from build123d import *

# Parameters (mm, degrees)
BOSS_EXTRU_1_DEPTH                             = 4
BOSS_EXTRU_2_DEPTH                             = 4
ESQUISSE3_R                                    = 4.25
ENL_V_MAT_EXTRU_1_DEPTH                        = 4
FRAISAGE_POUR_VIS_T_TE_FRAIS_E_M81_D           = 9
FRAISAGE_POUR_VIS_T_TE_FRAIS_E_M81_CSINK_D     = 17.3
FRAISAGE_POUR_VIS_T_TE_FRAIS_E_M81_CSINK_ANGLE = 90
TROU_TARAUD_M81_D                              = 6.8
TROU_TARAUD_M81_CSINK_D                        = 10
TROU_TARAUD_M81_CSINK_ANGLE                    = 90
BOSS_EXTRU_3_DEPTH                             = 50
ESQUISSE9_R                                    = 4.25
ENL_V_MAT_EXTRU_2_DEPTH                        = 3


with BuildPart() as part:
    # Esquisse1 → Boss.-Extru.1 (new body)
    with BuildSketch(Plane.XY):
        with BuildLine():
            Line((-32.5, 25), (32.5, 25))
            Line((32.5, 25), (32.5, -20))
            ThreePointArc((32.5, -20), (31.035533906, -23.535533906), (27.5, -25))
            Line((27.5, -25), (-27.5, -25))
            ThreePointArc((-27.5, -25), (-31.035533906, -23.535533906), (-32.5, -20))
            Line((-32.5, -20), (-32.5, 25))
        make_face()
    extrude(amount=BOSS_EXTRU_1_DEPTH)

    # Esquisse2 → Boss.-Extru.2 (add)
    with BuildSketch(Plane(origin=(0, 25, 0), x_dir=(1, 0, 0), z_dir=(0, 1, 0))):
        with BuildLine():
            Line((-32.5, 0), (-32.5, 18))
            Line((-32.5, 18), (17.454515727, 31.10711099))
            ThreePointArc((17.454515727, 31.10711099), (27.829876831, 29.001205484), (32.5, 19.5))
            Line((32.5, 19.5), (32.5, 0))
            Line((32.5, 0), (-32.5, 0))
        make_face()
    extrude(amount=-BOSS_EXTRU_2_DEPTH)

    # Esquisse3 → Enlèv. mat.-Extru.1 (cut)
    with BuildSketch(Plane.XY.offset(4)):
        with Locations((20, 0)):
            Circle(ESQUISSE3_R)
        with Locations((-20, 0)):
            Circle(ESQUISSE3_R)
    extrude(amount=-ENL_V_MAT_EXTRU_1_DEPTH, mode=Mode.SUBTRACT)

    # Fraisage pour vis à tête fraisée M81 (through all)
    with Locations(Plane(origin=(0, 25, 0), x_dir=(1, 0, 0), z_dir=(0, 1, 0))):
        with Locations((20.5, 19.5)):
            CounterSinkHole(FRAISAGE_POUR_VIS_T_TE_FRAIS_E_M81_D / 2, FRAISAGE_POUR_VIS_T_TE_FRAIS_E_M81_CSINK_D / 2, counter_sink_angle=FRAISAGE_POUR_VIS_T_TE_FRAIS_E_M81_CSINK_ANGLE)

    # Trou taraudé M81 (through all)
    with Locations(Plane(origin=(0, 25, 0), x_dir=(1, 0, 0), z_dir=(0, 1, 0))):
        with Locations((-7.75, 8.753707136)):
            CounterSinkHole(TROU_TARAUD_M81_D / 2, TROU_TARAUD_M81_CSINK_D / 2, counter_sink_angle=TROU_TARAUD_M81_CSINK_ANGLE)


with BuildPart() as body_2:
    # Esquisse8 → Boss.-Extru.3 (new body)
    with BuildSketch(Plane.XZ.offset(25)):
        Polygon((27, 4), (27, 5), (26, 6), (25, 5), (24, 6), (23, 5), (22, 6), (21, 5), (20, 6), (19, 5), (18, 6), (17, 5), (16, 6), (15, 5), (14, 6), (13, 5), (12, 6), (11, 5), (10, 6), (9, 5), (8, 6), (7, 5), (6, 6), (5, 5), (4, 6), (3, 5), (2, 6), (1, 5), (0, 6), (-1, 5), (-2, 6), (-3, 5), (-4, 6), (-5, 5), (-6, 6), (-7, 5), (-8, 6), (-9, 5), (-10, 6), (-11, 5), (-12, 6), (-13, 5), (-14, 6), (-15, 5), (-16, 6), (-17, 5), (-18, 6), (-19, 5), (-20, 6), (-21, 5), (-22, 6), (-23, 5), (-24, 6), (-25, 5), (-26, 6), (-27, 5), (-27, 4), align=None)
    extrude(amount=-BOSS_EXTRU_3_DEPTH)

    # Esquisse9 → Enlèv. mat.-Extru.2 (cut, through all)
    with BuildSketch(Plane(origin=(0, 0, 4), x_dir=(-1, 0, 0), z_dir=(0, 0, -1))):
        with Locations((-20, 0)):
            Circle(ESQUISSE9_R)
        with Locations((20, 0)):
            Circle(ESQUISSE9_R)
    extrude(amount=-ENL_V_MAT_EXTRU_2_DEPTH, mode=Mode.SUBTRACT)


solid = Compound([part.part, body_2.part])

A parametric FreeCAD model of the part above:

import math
import FreeCAD as App
import Part
import Sketcher
from FreeCAD import Vector
Q = App.Units.Quantity

doc = App.newDocument("Part")
body = doc.addObject("PartDesign::Body", "Body")

sketch1 = body.newObject("Sketcher::SketchObject", "Sketch")
sketch1.AttachmentSupport = (doc.getObject("XY_Plane"), [""])
sketch1.MapMode = "FlatFace"
sketch1.addGeometry(Part.LineSegment(Vector(32, 25, 0), Vector(-32, 25, 0)), False)
sketch1.addGeometry(Part.LineSegment(Vector(-32, 25, 0), Vector(-32, -20, 0)), False)
sketch1.addGeometry(Part.ArcOfCircle(Part.Circle(Vector(-28, -20, 0), Vector(0, 0, 1), 5), math.radians(180), math.radians(270)), False)
sketch1.addGeometry(Part.LineSegment(Vector(-28, -25, 0), Vector(28, -25, 0)), False)
sketch1.addGeometry(Part.ArcOfCircle(Part.Circle(Vector(28, -20, 0), Vector(0, 0, 1), 5), math.radians(-90), math.radians(0)), False)
sketch1.addGeometry(Part.LineSegment(Vector(32, -20, 0), Vector(32, 25, 0)), False)
sketch1.addConstraint(Sketcher.Constraint("Coincident", 0, 2, 1, 1))
sketch1.addConstraint(Sketcher.Constraint("Tangent", 1, 2, 2, 1))
sketch1.addConstraint(Sketcher.Constraint("Tangent", 2, 2, 3, 1))
sketch1.addConstraint(Sketcher.Constraint("Tangent", 3, 2, 4, 1))
sketch1.addConstraint(Sketcher.Constraint("Tangent", 4, 2, 5, 1))
sketch1.addConstraint(Sketcher.Constraint("Coincident", 5, 2, 0, 1))
sketch1.addConstraint(Sketcher.Constraint("Horizontal", 0))
sketch1.addConstraint(Sketcher.Constraint("Vertical", 1))
sketch1.addConstraint(Sketcher.Constraint("Horizontal", 3))
sketch1.addConstraint(Sketcher.Constraint("Vertical", 5))
sketch1.addConstraint(Sketcher.Constraint("Equal", 2, 4))
sketch1.addConstraint(Sketcher.Constraint("Radius", 2, Q("5 mm")))
sketch1.addConstraint(Sketcher.Constraint("DistanceX", 0, 2, 0, 1, Q("65 mm")))
sketch1.addConstraint(Sketcher.Constraint("DistanceY", 1, 2, 1, 1, Q("45 mm")))
sketch1.addConstraint(Sketcher.Constraint("DistanceY", 2, 3, -1, 1, Q("20 mm")))
sketch1.addConstraint(Sketcher.Constraint("DistanceX", 2, 3, -1, 1, Q("27.5 mm")))
pad1 = body.newObject("PartDesign::Pad", "Pad")
pad1.Profile = sketch1
pad1.Length = 4

sketch2 = body.newObject("Sketcher::SketchObject", "Sketch001")
sketch2.AttachmentSupport = (doc.getObject("XZ_Plane"), [""])
sketch2.MapMode = "FlatFace"
sketch2.AttachmentOffset = App.Placement(Vector(0, 0, -25), App.Rotation())
sketch2.addGeometry(Part.LineSegment(Vector(-32, -18, 0), Vector(-32, 0, 0)), False)
sketch2.addGeometry(Part.LineSegment(Vector(-32, 0, 0), Vector(32, 0, 0)), False)
sketch2.addGeometry(Part.LineSegment(Vector(32, 0, 0), Vector(32, -20, 0)), False)
sketch2.addGeometry(Part.ArcOfCircle(Part.Circle(Vector(21, -20, 0), Vector(0, 0, 1), 12), math.radians(-105), math.radians(0)), False)
sketch2.addGeometry(Part.LineSegment(Vector(17, -31, 0), Vector(-32, -18, 0)), False)
sketch2.addConstraint(Sketcher.Constraint("Coincident", 0, 2, 1, 1))
sketch2.addConstraint(Sketcher.Constraint("Coincident", 1, 2, 2, 1))
sketch2.addConstraint(Sketcher.Constraint("Tangent", 2, 2, 3, 2))
sketch2.addConstraint(Sketcher.Constraint("Tangent", 3, 1, 4, 1))
sketch2.addConstraint(Sketcher.Constraint("Coincident", 4, 2, 0, 1))
sketch2.addConstraint(Sketcher.Constraint("Vertical", 0))
sketch2.addConstraint(Sketcher.Constraint("Horizontal", 1))
sketch2.addConstraint(Sketcher.Constraint("Vertical", 2))
sketch2.addConstraint(Sketcher.Constraint("Symmetric", 0, 2, 1, 2, -1, 1))
sketch2.addConstraint(Sketcher.Constraint("Radius", 3, Q("12 mm")))
sketch2.addConstraint(Sketcher.Constraint("DistanceX", 1, 1, 1, 2, Q("65 mm")))
sketch2.addConstraint(Sketcher.Constraint("DistanceY", 0, 1, 0, 2, Q("18 mm")))
sketch2.addConstraint(Sketcher.Constraint("DistanceY", 2, 2, 2, 1, Q("19.5 mm")))
pad2 = body.newObject("PartDesign::Pad", "Pad001")
pad2.Profile = sketch2
pad2.Length = 4

sketch3 = body.newObject("Sketcher::SketchObject", "Sketch002")
sketch3.AttachmentSupport = (doc.getObject("XY_Plane"), [""])
sketch3.MapMode = "FlatFace"
sketch3.AttachmentOffset = App.Placement(Vector(0, 0, 4), App.Rotation())
sketch3.addGeometry(Part.Circle(Vector(20, 0, 0), Vector(0, 0, 1), 4.2), False)
sketch3.addGeometry(Part.Circle(Vector(-20, 0, 0), Vector(0, 0, 1), 4.2), False)
sketch3.addConstraint(Sketcher.Constraint("Equal", 0, 1))
sketch3.addConstraint(Sketcher.Constraint("Symmetric", 0, 3, 1, 3, -1, 1))
sketch3.addConstraint(Sketcher.Constraint("PointOnObject", 0, 3, -1))
sketch3.addConstraint(Sketcher.Constraint("Diameter", 0, Q("8.5 mm")))
sketch3.addConstraint(Sketcher.Constraint("DistanceX", -1, 1, 0, 3, Q("20 mm")))
pocket1 = body.newObject("PartDesign::Pocket", "Pocket")
pocket1.Profile = sketch3
pocket1.Length = 4

sketch4 = body.newObject("Sketcher::SketchObject", "Sketch003")
sketch4.AttachmentSupport = (doc.getObject("XZ_Plane"), [""])
sketch4.MapMode = "FlatFace"
sketch4.AttachmentOffset = App.Placement(Vector(0, 0, -25), App.Rotation())
sketch4.addGeometry(Part.Circle(Vector(20.5, -19.5, 0), Vector(0, 0, 1), 4.5), False)
sketch4.addConstraint(Sketcher.Constraint("Diameter", 0, Q("9 mm")))
sketch4.addConstraint(Sketcher.Constraint("DistanceX", -1, 1, 0, 3, Q("20.5 mm")))
sketch4.addConstraint(Sketcher.Constraint("DistanceY", 0, 3, -1, 1, Q("19.5 mm")))
doc.recompute()
hole = body.newObject("PartDesign::Hole", "Hole")
hole.Profile = sketch4
hole.ThreadType = "None"
hole.Diameter = 9
hole.DepthType = "ThroughAll"
hole.HoleCutType = "Countersink"
hole.HoleCutDiameter = 17.3
hole.HoleCutCountersinkAngle = 90
hole.Reversed = True

sketch5 = body.newObject("Sketcher::SketchObject", "Sketch004")
sketch5.AttachmentSupport = (doc.getObject("XZ_Plane"), [""])
sketch5.MapMode = "FlatFace"
sketch5.AttachmentOffset = App.Placement(Vector(0, 0, -25), App.Rotation())
sketch5.addGeometry(Part.Circle(Vector(-7.8, -8.8, 0), Vector(0, 0, 1), 3.4), False)
sketch5.addConstraint(Sketcher.Constraint("Diameter", 0, Q("6.8 mm")))
sketch5.addConstraint(Sketcher.Constraint("DistanceX", 0, 3, -1, 1, Q("7.75 mm")))
sketch5.addConstraint(Sketcher.Constraint("DistanceY", 0, 3, -1, 1, Q("8.753707 mm")))
doc.recompute()
hole2 = body.newObject("PartDesign::Hole", "Hole001")
hole2.Profile = sketch5
hole2.ThreadType = "None"
hole2.Diameter = 6.8
hole2.DepthType = "ThroughAll"
hole2.HoleCutType = "Countersink"
hole2.HoleCutDiameter = 10
hole2.HoleCutCountersinkAngle = 90
hole2.Reversed = True
body2 = doc.addObject("PartDesign::Body", "Body001")

sketch6 = body2.newObject("Sketcher::SketchObject", "Sketch005")
sketch6.AttachmentSupport = (doc.getObject("XZ_Plane001"), [""])
sketch6.MapMode = "FlatFace"
sketch6.AttachmentOffset = App.Placement(Vector(0, 0, 25), App.Rotation())
sketch6.addGeometry(Part.LineSegment(Vector(27, 4, 0), Vector(27, 5, 0)), False)
sketch6.addGeometry(Part.LineSegment(Vector(27, 5, 0), Vector(26, 6, 0)), False)
sketch6.addGeometry(Part.LineSegment(Vector(26, 6, 0), Vector(25, 5, 0)), False)
sketch6.addGeometry(Part.LineSegment(Vector(25, 5, 0), Vector(24, 6, 0)), False)
sketch6.addGeometry(Part.LineSegment(Vector(24, 6, 0), Vector(23, 5, 0)), False)
sketch6.addGeometry(Part.LineSegment(Vector(23, 5, 0), Vector(22, 6, 0)), False)
sketch6.addGeometry(Part.LineSegment(Vector(22, 6, 0), Vector(21, 5, 0)), False)
sketch6.addGeometry(Part.LineSegment(Vector(21, 5, 0), Vector(20, 6, 0)), False)
sketch6.addGeometry(Part.LineSegment(Vector(20, 6, 0), Vector(19, 5, 0)), False)
sketch6.addGeometry(Part.LineSegment(Vector(19, 5, 0), Vector(18, 6, 0)), False)
sketch6.addGeometry(Part.LineSegment(Vector(18, 6, 0), Vector(17, 5, 0)), False)
sketch6.addGeometry(Part.LineSegment(Vector(17, 5, 0), Vector(16, 6, 0)), False)
sketch6.addGeometry(Part.LineSegment(Vector(16, 6, 0), Vector(15, 5, 0)), False)
sketch6.addGeometry(Part.LineSegment(Vector(15, 5, 0), Vector(14, 6, 0)), False)
sketch6.addGeometry(Part.LineSegment(Vector(14, 6, 0), Vector(13, 5, 0)), False)
sketch6.addGeometry(Part.LineSegment(Vector(13, 5, 0), Vector(12, 6, 0)), False)
sketch6.addGeometry(Part.LineSegment(Vector(12, 6, 0), Vector(11, 5, 0)), False)
sketch6.addGeometry(Part.LineSegment(Vector(11, 5, 0), Vector(10, 6, 0)), False)
sketch6.addGeometry(Part.LineSegment(Vector(10, 6, 0), Vector(9, 5, 0)), False)
sketch6.addGeometry(Part.LineSegment(Vector(9, 5, 0), Vector(8, 6, 0)), False)
sketch6.addGeometry(Part.LineSegment(Vector(8, 6, 0), Vector(7, 5, 0)), False)
sketch6.addGeometry(Part.LineSegment(Vector(7, 5, 0), Vector(6, 6, 0)), False)
sketch6.addGeometry(Part.LineSegment(Vector(6, 6, 0), Vector(5, 5, 0)), False)
sketch6.addGeometry(Part.LineSegment(Vector(5, 5, 0), Vector(4, 6, 0)), False)
sketch6.addGeometry(Part.LineSegment(Vector(4, 6, 0), Vector(3, 5, 0)), False)
sketch6.addGeometry(Part.LineSegment(Vector(3, 5, 0), Vector(2, 6, 0)), False)
sketch6.addGeometry(Part.LineSegment(Vector(2, 6, 0), Vector(1, 5, 0)), False)
sketch6.addGeometry(Part.LineSegment(Vector(1, 5, 0), Vector(0, 6, 0)), False)
sketch6.addGeometry(Part.LineSegment(Vector(0, 6, 0), Vector(-1, 5, 0)), False)
sketch6.addGeometry(Part.LineSegment(Vector(-1, 5, 0), Vector(-2, 6, 0)), False)
sketch6.addGeometry(Part.LineSegment(Vector(-2, 6, 0), Vector(-3, 5, 0)), False)
sketch6.addGeometry(Part.LineSegment(Vector(-3, 5, 0), Vector(-4, 6, 0)), False)
sketch6.addGeometry(Part.LineSegment(Vector(-4, 6, 0), Vector(-5, 5, 0)), False)
sketch6.addGeometry(Part.LineSegment(Vector(-5, 5, 0), Vector(-6, 6, 0)), False)
sketch6.addGeometry(Part.LineSegment(Vector(-6, 6, 0), Vector(-7, 5, 0)), False)
sketch6.addGeometry(Part.LineSegment(Vector(-7, 5, 0), Vector(-8, 6, 0)), False)
sketch6.addGeometry(Part.LineSegment(Vector(-8, 6, 0), Vector(-9, 5, 0)), False)
sketch6.addGeometry(Part.LineSegment(Vector(-9, 5, 0), Vector(-10, 6, 0)), False)
sketch6.addGeometry(Part.LineSegment(Vector(-10, 6, 0), Vector(-11, 5, 0)), False)
sketch6.addGeometry(Part.LineSegment(Vector(-11, 5, 0), Vector(-12, 6, 0)), False)
sketch6.addGeometry(Part.LineSegment(Vector(-12, 6, 0), Vector(-13, 5, 0)), False)
sketch6.addGeometry(Part.LineSegment(Vector(-13, 5, 0), Vector(-14, 6, 0)), False)
sketch6.addGeometry(Part.LineSegment(Vector(-14, 6, 0), Vector(-15, 5, 0)), False)
sketch6.addGeometry(Part.LineSegment(Vector(-15, 5, 0), Vector(-16, 6, 0)), False)
sketch6.addGeometry(Part.LineSegment(Vector(-16, 6, 0), Vector(-17, 5, 0)), False)
sketch6.addGeometry(Part.LineSegment(Vector(-17, 5, 0), Vector(-18, 6, 0)), False)
sketch6.addGeometry(Part.LineSegment(Vector(-18, 6, 0), Vector(-19, 5, 0)), False)
sketch6.addGeometry(Part.LineSegment(Vector(-19, 5, 0), Vector(-20, 6, 0)), False)
sketch6.addGeometry(Part.LineSegment(Vector(-20, 6, 0), Vector(-21, 5, 0)), False)
sketch6.addGeometry(Part.LineSegment(Vector(-21, 5, 0), Vector(-22, 6, 0)), False)
sketch6.addGeometry(Part.LineSegment(Vector(-22, 6, 0), Vector(-23, 5, 0)), False)
sketch6.addGeometry(Part.LineSegment(Vector(-23, 5, 0), Vector(-24, 6, 0)), False)
sketch6.addGeometry(Part.LineSegment(Vector(-24, 6, 0), Vector(-25, 5, 0)), False)
sketch6.addGeometry(Part.LineSegment(Vector(-25, 5, 0), Vector(-26, 6, 0)), False)
sketch6.addGeometry(Part.LineSegment(Vector(-26, 6, 0), Vector(-27, 5, 0)), False)
sketch6.addGeometry(Part.LineSegment(Vector(-27, 5, 0), Vector(-27, 4, 0)), False)
sketch6.addGeometry(Part.LineSegment(Vector(-27, 4, 0), Vector(27, 4, 0)), False)
sketch6.addConstraint(Sketcher.Constraint("Coincident", 0, 2, 1, 1))
sketch6.addConstraint(Sketcher.Constraint("Coincident", 1, 2, 2, 1))
sketch6.addConstraint(Sketcher.Constraint("Coincident", 2, 2, 3, 1))
sketch6.addConstraint(Sketcher.Constraint("Coincident", 3, 2, 4, 1))
sketch6.addConstraint(Sketcher.Constraint("Coincident", 4, 2, 5, 1))
sketch6.addConstraint(Sketcher.Constraint("Coincident", 5, 2, 6, 1))
sketch6.addConstraint(Sketcher.Constraint("Coincident", 6, 2, 7, 1))
sketch6.addConstraint(Sketcher.Constraint("Coincident", 7, 2, 8, 1))
sketch6.addConstraint(Sketcher.Constraint("Coincident", 8, 2, 9, 1))
sketch6.addConstraint(Sketcher.Constraint("Coincident", 9, 2, 10, 1))
sketch6.addConstraint(Sketcher.Constraint("Coincident", 10, 2, 11, 1))
sketch6.addConstraint(Sketcher.Constraint("Coincident", 11, 2, 12, 1))
sketch6.addConstraint(Sketcher.Constraint("Coincident", 12, 2, 13, 1))
sketch6.addConstraint(Sketcher.Constraint("Coincident", 13, 2, 14, 1))
sketch6.addConstraint(Sketcher.Constraint("Coincident", 14, 2, 15, 1))
sketch6.addConstraint(Sketcher.Constraint("Coincident", 15, 2, 16, 1))
sketch6.addConstraint(Sketcher.Constraint("Coincident", 16, 2, 17, 1))
sketch6.addConstraint(Sketcher.Constraint("Coincident", 17, 2, 18, 1))
sketch6.addConstraint(Sketcher.Constraint("Coincident", 18, 2, 19, 1))
sketch6.addConstraint(Sketcher.Constraint("Coincident", 19, 2, 20, 1))
sketch6.addConstraint(Sketcher.Constraint("Coincident", 20, 2, 21, 1))
sketch6.addConstraint(Sketcher.Constraint("Coincident", 21, 2, 22, 1))
sketch6.addConstraint(Sketcher.Constraint("Coincident", 22, 2, 23, 1))
sketch6.addConstraint(Sketcher.Constraint("Coincident", 23, 2, 24, 1))
sketch6.addConstraint(Sketcher.Constraint("Coincident", 24, 2, 25, 1))
sketch6.addConstraint(Sketcher.Constraint("Coincident", 25, 2, 26, 1))
sketch6.addConstraint(Sketcher.Constraint("Coincident", 26, 2, 27, 1))
sketch6.addConstraint(Sketcher.Constraint("Coincident", 27, 2, 28, 1))
sketch6.addConstraint(Sketcher.Constraint("Coincident", 28, 2, 29, 1))
sketch6.addConstraint(Sketcher.Constraint("Coincident", 29, 2, 30, 1))
sketch6.addConstraint(Sketcher.Constraint("Coincident", 30, 2, 31, 1))
sketch6.addConstraint(Sketcher.Constraint("Coincident", 31, 2, 32, 1))
sketch6.addConstraint(Sketcher.Constraint("Coincident", 32, 2, 33, 1))
sketch6.addConstraint(Sketcher.Constraint("Coincident", 33, 2, 34, 1))
sketch6.addConstraint(Sketcher.Constraint("Coincident", 34, 2, 35, 1))
sketch6.addConstraint(Sketcher.Constraint("Coincident", 35, 2, 36, 1))
sketch6.addConstraint(Sketcher.Constraint("Coincident", 36, 2, 37, 1))
sketch6.addConstraint(Sketcher.Constraint("Coincident", 37, 2, 38, 1))
sketch6.addConstraint(Sketcher.Constraint("Coincident", 38, 2, 39, 1))
sketch6.addConstraint(Sketcher.Constraint("Coincident", 39, 2, 40, 1))
sketch6.addConstraint(Sketcher.Constraint("Coincident", 40, 2, 41, 1))
sketch6.addConstraint(Sketcher.Constraint("Coincident", 41, 2, 42, 1))
sketch6.addConstraint(Sketcher.Constraint("Coincident", 42, 2, 43, 1))
sketch6.addConstraint(Sketcher.Constraint("Coincident", 43, 2, 44, 1))
sketch6.addConstraint(Sketcher.Constraint("Coincident", 44, 2, 45, 1))
sketch6.addConstraint(Sketcher.Constraint("Coincident", 45, 2, 46, 1))
sketch6.addConstraint(Sketcher.Constraint("Coincident", 46, 2, 47, 1))
sketch6.addConstraint(Sketcher.Constraint("Coincident", 47, 2, 48, 1))
sketch6.addConstraint(Sketcher.Constraint("Coincident", 48, 2, 49, 1))
sketch6.addConstraint(Sketcher.Constraint("Coincident", 49, 2, 50, 1))
sketch6.addConstraint(Sketcher.Constraint("Coincident", 50, 2, 51, 1))
sketch6.addConstraint(Sketcher.Constraint("Coincident", 51, 2, 52, 1))
sketch6.addConstraint(Sketcher.Constraint("Coincident", 52, 2, 53, 1))
sketch6.addConstraint(Sketcher.Constraint("Coincident", 53, 2, 54, 1))
sketch6.addConstraint(Sketcher.Constraint("Coincident", 54, 2, 55, 1))
sketch6.addConstraint(Sketcher.Constraint("Coincident", 55, 2, 56, 1))
sketch6.addConstraint(Sketcher.Constraint("Coincident", 56, 2, 0, 1))
sketch6.addConstraint(Sketcher.Constraint("Vertical", 0))
sketch6.addConstraint(Sketcher.Constraint("Vertical", 55))
sketch6.addConstraint(Sketcher.Constraint("Horizontal", 56))
sketch6.addConstraint(Sketcher.Constraint("Symmetric", 26, 2, 28, 2, -2))
sketch6.addConstraint(Sketcher.Constraint("Symmetric", 25, 2, 29, 2, -2))
sketch6.addConstraint(Sketcher.Constraint("Symmetric", 24, 2, 30, 2, -2))
sketch6.addConstraint(Sketcher.Constraint("Symmetric", 23, 2, 31, 2, -2))
sketch6.addConstraint(Sketcher.Constraint("Symmetric", 22, 2, 32, 2, -2))
sketch6.addConstraint(Sketcher.Constraint("Symmetric", 21, 2, 33, 2, -2))
sketch6.addConstraint(Sketcher.Constraint("Symmetric", 20, 2, 34, 2, -2))
sketch6.addConstraint(Sketcher.Constraint("Symmetric", 19, 2, 35, 2, -2))
sketch6.addConstraint(Sketcher.Constraint("Symmetric", 18, 2, 36, 2, -2))
sketch6.addConstraint(Sketcher.Constraint("Symmetric", 17, 2, 37, 2, -2))
sketch6.addConstraint(Sketcher.Constraint("Symmetric", 16, 2, 38, 2, -2))
sketch6.addConstraint(Sketcher.Constraint("Symmetric", 15, 2, 39, 2, -2))
sketch6.addConstraint(Sketcher.Constraint("Symmetric", 14, 2, 40, 2, -2))
sketch6.addConstraint(Sketcher.Constraint("Symmetric", 13, 2, 41, 2, -2))
sketch6.addConstraint(Sketcher.Constraint("Symmetric", 12, 2, 42, 2, -2))
sketch6.addConstraint(Sketcher.Constraint("Symmetric", 11, 2, 43, 2, -2))
sketch6.addConstraint(Sketcher.Constraint("Symmetric", 10, 2, 44, 2, -2))
sketch6.addConstraint(Sketcher.Constraint("Symmetric", 9, 2, 45, 2, -2))
sketch6.addConstraint(Sketcher.Constraint("Symmetric", 8, 2, 46, 2, -2))
sketch6.addConstraint(Sketcher.Constraint("Symmetric", 7, 2, 47, 2, -2))
sketch6.addConstraint(Sketcher.Constraint("Symmetric", 6, 2, 48, 2, -2))
sketch6.addConstraint(Sketcher.Constraint("Symmetric", 5, 2, 49, 2, -2))
sketch6.addConstraint(Sketcher.Constraint("Symmetric", 4, 2, 50, 2, -2))
sketch6.addConstraint(Sketcher.Constraint("Symmetric", 3, 2, 51, 2, -2))
sketch6.addConstraint(Sketcher.Constraint("Symmetric", 2, 2, 52, 2, -2))
sketch6.addConstraint(Sketcher.Constraint("Symmetric", 1, 2, 53, 2, -2))
sketch6.addConstraint(Sketcher.Constraint("Symmetric", 0, 2, 54, 2, -2))
sketch6.addConstraint(Sketcher.Constraint("PointOnObject", 27, 2, -2))
sketch6.addConstraint(Sketcher.Constraint("Perpendicular", 1, 2))
sketch6.addConstraint(Sketcher.Constraint("Perpendicular", 2, 3))
sketch6.addConstraint(Sketcher.Constraint("Perpendicular", 3, 4))
sketch6.addConstraint(Sketcher.Constraint("Perpendicular", 4, 5))
sketch6.addConstraint(Sketcher.Constraint("Perpendicular", 5, 6))
sketch6.addConstraint(Sketcher.Constraint("Perpendicular", 6, 7))
sketch6.addConstraint(Sketcher.Constraint("Perpendicular", 7, 8))
sketch6.addConstraint(Sketcher.Constraint("Perpendicular", 8, 9))
sketch6.addConstraint(Sketcher.Constraint("Perpendicular", 9, 10))
sketch6.addConstraint(Sketcher.Constraint("Perpendicular", 10, 11))
sketch6.addConstraint(Sketcher.Constraint("Perpendicular", 11, 12))
sketch6.addConstraint(Sketcher.Constraint("Perpendicular", 12, 13))
sketch6.addConstraint(Sketcher.Constraint("Perpendicular", 13, 14))
sketch6.addConstraint(Sketcher.Constraint("Perpendicular", 14, 15))
sketch6.addConstraint(Sketcher.Constraint("Perpendicular", 15, 16))
sketch6.addConstraint(Sketcher.Constraint("Perpendicular", 16, 17))
sketch6.addConstraint(Sketcher.Constraint("Perpendicular", 17, 18))
sketch6.addConstraint(Sketcher.Constraint("Perpendicular", 18, 19))
sketch6.addConstraint(Sketcher.Constraint("Perpendicular", 19, 20))
sketch6.addConstraint(Sketcher.Constraint("Perpendicular", 20, 21))
sketch6.addConstraint(Sketcher.Constraint("Perpendicular", 21, 22))
sketch6.addConstraint(Sketcher.Constraint("Perpendicular", 22, 23))
sketch6.addConstraint(Sketcher.Constraint("Perpendicular", 23, 24))
sketch6.addConstraint(Sketcher.Constraint("Perpendicular", 24, 25))
sketch6.addConstraint(Sketcher.Constraint("Perpendicular", 25, 26))
sketch6.addConstraint(Sketcher.Constraint("Perpendicular", 26, 27))
sketch6.addConstraint(Sketcher.Constraint("Perpendicular", 27, 28))
sketch6.addConstraint(Sketcher.Constraint("Horizontal", 0, 2, 2, 2))
sketch6.addConstraint(Sketcher.Constraint("Horizontal", 1, 2, 3, 2))
sketch6.addConstraint(Sketcher.Constraint("Horizontal", 2, 2, 4, 2))
sketch6.addConstraint(Sketcher.Constraint("Horizontal", 3, 2, 5, 2))
sketch6.addConstraint(Sketcher.Constraint("Horizontal", 4, 2, 6, 2))
sketch6.addConstraint(Sketcher.Constraint("Horizontal", 5, 2, 7, 2))
sketch6.addConstraint(Sketcher.Constraint("Horizontal", 6, 2, 8, 2))
sketch6.addConstraint(Sketcher.Constraint("Horizontal", 7, 2, 9, 2))
sketch6.addConstraint(Sketcher.Constraint("Horizontal", 8, 2, 10, 2))
sketch6.addConstraint(Sketcher.Constraint("Horizontal", 9, 2, 11, 2))
sketch6.addConstraint(Sketcher.Constraint("Horizontal", 10, 2, 12, 2))
sketch6.addConstraint(Sketcher.Constraint("Horizontal", 11, 2, 13, 2))
sketch6.addConstraint(Sketcher.Constraint("Horizontal", 12, 2, 14, 2))
sketch6.addConstraint(Sketcher.Constraint("Horizontal", 13, 2, 15, 2))
sketch6.addConstraint(Sketcher.Constraint("Horizontal", 14, 2, 16, 2))
sketch6.addConstraint(Sketcher.Constraint("Horizontal", 15, 2, 17, 2))
sketch6.addConstraint(Sketcher.Constraint("Horizontal", 16, 2, 18, 2))
sketch6.addConstraint(Sketcher.Constraint("Horizontal", 17, 2, 19, 2))
sketch6.addConstraint(Sketcher.Constraint("Horizontal", 18, 2, 20, 2))
sketch6.addConstraint(Sketcher.Constraint("Horizontal", 19, 2, 21, 2))
sketch6.addConstraint(Sketcher.Constraint("Horizontal", 20, 2, 22, 2))
sketch6.addConstraint(Sketcher.Constraint("Horizontal", 21, 2, 23, 2))
sketch6.addConstraint(Sketcher.Constraint("Horizontal", 22, 2, 24, 2))
sketch6.addConstraint(Sketcher.Constraint("Horizontal", 23, 2, 25, 2))
sketch6.addConstraint(Sketcher.Constraint("Horizontal", 24, 2, 26, 2))
sketch6.addConstraint(Sketcher.Constraint("Horizontal", 25, 2, 27, 2))
sketch6.addConstraint(Sketcher.Constraint("DistanceX", 56, 1, 56, 2, Q("54 mm")))
sketch6.addConstraint(Sketcher.Constraint("DistanceY", 0, 1, 0, 2, Q("1 mm")))
sketch6.addConstraint(Sketcher.Constraint("DistanceY", -1, 1, 0, 2, Q("5 mm")))
pad3 = body2.newObject("PartDesign::Pad", "Pad002")
pad3.Profile = sketch6
pad3.Length = 50
pad3.Reversed = True

sketch7 = body2.newObject("Sketcher::SketchObject", "Sketch006")
sketch7.AttachmentSupport = (doc.getObject("XY_Plane001"), [""])
sketch7.MapMode = "FlatFace"
sketch7.AttachmentOffset = App.Placement(Vector(0, 0, 4), App.Rotation())
sketch7.addGeometry(Part.Circle(Vector(20, 0, 0), Vector(0, 0, 1), 4.2), False)
sketch7.addGeometry(Part.Circle(Vector(-20, 0, 0), Vector(0, 0, 1), 4.2), False)
sketch7.addConstraint(Sketcher.Constraint("Equal", 0, 1))
sketch7.addConstraint(Sketcher.Constraint("Symmetric", 0, 3, 1, 3, -1, 1))
sketch7.addConstraint(Sketcher.Constraint("PointOnObject", 0, 3, -1))
sketch7.addConstraint(Sketcher.Constraint("Diameter", 0, Q("8.5 mm")))
sketch7.addConstraint(Sketcher.Constraint("DistanceX", -1, 1, 0, 3, Q("20 mm")))
pocket2 = body2.newObject("PartDesign::Pocket", "Pocket001")
pocket2.Profile = sketch7
pocket2.Type = "ThroughAll"
pocket2.Reversed = True

doc.recompute()
